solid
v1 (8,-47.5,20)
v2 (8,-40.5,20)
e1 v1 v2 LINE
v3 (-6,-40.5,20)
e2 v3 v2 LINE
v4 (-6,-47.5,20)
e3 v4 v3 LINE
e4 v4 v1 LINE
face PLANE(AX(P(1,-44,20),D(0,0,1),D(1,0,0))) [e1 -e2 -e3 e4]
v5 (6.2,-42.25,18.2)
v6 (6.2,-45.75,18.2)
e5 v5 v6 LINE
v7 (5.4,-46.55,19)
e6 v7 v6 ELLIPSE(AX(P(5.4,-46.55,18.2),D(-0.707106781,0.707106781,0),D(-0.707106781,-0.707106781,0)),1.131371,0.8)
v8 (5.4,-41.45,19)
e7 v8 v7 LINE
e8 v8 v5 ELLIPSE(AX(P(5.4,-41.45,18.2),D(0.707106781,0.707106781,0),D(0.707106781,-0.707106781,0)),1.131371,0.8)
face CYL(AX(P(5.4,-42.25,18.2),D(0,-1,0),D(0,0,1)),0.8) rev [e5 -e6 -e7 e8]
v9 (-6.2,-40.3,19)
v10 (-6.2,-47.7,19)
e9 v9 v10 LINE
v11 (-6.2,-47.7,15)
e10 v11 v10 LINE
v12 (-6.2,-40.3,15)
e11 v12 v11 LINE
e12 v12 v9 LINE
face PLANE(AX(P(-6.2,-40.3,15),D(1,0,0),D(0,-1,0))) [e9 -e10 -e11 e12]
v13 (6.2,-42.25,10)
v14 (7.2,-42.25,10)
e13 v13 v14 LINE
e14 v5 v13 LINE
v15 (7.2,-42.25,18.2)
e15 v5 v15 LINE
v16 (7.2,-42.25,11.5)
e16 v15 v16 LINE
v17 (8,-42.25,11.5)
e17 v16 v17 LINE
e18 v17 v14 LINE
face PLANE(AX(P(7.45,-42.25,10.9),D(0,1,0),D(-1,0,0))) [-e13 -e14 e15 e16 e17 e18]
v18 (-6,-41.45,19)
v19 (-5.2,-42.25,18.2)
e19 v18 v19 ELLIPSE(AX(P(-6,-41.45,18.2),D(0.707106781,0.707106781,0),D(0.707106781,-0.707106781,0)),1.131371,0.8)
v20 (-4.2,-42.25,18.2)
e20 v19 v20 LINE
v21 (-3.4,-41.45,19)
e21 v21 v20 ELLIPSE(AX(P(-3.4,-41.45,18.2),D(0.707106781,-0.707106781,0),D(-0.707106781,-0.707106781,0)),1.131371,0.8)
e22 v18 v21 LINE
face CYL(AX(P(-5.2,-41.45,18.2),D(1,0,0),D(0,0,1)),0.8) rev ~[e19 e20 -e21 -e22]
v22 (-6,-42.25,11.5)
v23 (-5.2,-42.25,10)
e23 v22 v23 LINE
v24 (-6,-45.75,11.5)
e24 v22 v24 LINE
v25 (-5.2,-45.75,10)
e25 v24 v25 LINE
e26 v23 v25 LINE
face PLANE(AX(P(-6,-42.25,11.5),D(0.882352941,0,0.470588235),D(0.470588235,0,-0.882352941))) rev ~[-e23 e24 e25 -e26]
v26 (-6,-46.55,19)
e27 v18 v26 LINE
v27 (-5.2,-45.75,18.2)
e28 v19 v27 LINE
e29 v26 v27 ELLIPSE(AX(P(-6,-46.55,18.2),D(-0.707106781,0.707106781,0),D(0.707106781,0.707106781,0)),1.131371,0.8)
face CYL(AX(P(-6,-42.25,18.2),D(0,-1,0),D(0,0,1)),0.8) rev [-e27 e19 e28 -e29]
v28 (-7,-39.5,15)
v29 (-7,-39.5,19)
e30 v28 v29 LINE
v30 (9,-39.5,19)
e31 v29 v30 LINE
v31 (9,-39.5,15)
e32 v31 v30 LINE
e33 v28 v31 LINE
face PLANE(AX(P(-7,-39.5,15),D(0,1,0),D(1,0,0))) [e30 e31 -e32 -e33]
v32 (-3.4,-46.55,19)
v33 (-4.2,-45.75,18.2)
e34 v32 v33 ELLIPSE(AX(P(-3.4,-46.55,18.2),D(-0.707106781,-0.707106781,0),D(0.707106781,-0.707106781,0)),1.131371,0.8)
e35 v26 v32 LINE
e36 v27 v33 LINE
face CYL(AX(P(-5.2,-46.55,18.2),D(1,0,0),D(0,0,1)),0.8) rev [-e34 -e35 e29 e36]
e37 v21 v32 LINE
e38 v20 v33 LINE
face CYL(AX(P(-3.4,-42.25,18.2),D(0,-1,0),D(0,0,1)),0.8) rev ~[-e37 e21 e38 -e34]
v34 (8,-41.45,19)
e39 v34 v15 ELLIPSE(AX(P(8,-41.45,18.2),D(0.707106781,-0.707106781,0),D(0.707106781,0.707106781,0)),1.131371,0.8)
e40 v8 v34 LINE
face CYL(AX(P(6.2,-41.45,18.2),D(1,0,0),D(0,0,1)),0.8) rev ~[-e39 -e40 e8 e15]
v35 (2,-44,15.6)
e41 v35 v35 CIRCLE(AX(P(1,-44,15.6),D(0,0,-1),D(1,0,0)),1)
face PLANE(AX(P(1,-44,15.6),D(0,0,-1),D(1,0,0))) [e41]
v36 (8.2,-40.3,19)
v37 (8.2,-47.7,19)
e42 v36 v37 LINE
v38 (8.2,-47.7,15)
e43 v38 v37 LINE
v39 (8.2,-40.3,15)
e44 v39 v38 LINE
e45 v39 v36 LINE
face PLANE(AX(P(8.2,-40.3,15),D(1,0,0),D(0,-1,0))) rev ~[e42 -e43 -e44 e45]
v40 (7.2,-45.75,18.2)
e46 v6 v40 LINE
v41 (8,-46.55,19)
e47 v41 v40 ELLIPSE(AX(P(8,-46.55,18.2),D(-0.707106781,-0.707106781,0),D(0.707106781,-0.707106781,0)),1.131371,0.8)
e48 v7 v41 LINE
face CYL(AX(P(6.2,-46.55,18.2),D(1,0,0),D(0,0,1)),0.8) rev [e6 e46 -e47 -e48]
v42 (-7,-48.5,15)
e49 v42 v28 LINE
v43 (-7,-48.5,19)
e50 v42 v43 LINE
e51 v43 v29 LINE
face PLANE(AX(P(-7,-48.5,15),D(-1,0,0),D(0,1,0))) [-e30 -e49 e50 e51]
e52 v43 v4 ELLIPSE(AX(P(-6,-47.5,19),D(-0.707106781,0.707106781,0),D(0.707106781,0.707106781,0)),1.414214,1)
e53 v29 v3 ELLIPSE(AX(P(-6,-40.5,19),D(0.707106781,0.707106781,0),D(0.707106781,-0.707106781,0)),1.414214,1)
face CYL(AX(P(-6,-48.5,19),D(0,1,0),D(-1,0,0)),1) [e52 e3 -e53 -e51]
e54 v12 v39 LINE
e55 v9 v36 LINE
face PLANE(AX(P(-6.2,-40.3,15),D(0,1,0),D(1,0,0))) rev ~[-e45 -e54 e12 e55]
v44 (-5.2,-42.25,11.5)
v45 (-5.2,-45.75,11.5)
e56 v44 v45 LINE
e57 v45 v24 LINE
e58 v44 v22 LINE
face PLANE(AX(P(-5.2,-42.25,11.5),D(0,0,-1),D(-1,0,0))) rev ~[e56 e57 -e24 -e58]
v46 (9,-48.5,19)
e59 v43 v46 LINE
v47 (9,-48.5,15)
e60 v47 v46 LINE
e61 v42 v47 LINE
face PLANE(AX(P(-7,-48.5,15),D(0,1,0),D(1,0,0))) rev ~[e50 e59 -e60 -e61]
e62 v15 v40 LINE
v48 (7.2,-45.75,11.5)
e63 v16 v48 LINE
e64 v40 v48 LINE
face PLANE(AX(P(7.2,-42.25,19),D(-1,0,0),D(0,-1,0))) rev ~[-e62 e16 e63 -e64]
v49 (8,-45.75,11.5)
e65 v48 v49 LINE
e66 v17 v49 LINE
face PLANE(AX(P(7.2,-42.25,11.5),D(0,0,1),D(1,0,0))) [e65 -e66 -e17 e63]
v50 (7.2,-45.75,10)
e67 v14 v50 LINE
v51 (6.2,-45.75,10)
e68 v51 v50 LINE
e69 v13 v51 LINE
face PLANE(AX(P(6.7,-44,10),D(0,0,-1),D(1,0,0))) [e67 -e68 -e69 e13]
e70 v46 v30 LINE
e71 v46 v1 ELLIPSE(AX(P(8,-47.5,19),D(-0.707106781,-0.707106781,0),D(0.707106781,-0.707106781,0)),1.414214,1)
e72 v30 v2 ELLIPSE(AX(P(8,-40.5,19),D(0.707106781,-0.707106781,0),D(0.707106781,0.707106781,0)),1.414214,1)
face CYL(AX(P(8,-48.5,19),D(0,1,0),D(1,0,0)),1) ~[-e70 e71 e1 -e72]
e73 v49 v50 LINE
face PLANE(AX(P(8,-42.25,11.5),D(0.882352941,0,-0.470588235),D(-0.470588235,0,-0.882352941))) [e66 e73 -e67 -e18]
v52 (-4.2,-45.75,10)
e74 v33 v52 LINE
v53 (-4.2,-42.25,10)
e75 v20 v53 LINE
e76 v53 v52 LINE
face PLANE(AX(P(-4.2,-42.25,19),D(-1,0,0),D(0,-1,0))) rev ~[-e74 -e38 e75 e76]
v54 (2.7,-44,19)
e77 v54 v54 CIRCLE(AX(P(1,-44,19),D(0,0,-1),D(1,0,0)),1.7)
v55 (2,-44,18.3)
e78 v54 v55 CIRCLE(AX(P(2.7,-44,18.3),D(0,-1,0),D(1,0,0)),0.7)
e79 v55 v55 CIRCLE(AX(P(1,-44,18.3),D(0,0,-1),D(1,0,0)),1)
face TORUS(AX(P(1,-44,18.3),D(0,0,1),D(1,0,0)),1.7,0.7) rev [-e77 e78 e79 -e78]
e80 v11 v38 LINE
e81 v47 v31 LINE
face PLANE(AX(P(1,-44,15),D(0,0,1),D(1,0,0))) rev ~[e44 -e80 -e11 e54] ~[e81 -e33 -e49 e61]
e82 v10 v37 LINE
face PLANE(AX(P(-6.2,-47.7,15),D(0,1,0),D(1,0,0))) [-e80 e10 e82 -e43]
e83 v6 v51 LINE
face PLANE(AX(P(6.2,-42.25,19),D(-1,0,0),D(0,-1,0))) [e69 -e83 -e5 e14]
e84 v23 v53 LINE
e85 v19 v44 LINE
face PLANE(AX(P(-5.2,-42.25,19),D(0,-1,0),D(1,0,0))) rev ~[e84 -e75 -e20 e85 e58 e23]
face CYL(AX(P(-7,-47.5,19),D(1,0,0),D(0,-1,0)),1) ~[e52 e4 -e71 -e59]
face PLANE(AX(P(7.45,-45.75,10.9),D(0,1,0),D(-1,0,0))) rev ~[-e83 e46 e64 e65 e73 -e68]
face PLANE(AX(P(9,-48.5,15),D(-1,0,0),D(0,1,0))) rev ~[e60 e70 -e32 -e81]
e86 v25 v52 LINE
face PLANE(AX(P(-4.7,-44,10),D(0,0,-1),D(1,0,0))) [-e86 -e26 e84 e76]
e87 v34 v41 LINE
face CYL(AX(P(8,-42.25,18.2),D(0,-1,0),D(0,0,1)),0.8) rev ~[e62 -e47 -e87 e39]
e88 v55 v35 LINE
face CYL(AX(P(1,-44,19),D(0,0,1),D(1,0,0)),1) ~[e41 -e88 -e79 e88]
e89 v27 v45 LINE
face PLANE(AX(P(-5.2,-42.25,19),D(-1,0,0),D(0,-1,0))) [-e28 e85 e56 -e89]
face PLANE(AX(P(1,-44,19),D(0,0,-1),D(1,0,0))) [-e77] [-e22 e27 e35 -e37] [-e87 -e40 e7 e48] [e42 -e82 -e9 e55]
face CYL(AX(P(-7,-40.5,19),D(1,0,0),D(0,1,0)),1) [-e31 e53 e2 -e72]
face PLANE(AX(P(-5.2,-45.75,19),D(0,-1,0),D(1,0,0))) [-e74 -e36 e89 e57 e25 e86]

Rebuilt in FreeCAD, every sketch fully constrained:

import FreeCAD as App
import Part
import Sketcher
from FreeCAD import Vector
Q = App.Units.Quantity


def edges_at(feature, points):
    """Names of the edges that pass closest to the given points."""
    edges = feature.Shape.Edges
    near = lambda p: min(range(len(edges)), key=lambda i: edges[i].distToShape(Part.Vertex(*p))[0])
    return sorted({f"Edge{near(p) + 1}" for p in points})


def add_polygon(sketch, points):
    """Adds a closed chain of lines whose ends are joined by coincident constraints."""
    first, n = sketch.GeometryCount, len(points)
    for a, b in zip(points, points[1:] + points[:1]):
        sketch.addGeometry(Part.LineSegment(App.Vector(*a, 0), App.Vector(*b, 0)), False)
    for i in range(n):
        sketch.addConstraint(Sketcher.Constraint("Coincident", first + i, 2, first + (i + 1) % n, 1))

doc = App.newDocument("Part")
body = doc.addObject("PartDesign::Body", "Body")

sketch1 = body.newObject("Sketcher::SketchObject", "Sketch")
sketch1.AttachmentSupport = (doc.getObject("XY_Plane"), [""])
sketch1.MapMode = "FlatFace"
add_polygon(sketch1, [(-8, 4), (-8, -4), (8, -4), (8, 4)])
sketch1.addConstraint(Sketcher.Constraint("Vertical", 0))
sketch1.addConstraint(Sketcher.Constraint("Horizontal", 1))
sketch1.addConstraint(Sketcher.Constraint("Vertical", 2))
sketch1.addConstraint(Sketcher.Constraint("Horizontal", 3))
sketch1.addConstraint(Sketcher.Constraint("Symmetric", 0, 2, 2, 2, -1, 1))
sketch1.addConstraint(Sketcher.Constraint("DistanceX", 1, 1, 1, 2, Q("16 mm")))
sketch1.addConstraint(Sketcher.Constraint("DistanceY", 0, 2, 0, 1, Q("9 mm")))
pad1 = body.newObject("PartDesign::Pad", "Pad")
pad1.Profile = sketch1
pad1.Length = 5

sketch2 = body.newObject("Sketcher::SketchObject", "Sketch001")
sketch2.AttachmentSupport = (doc.getObject("XY_Plane"), [""])
sketch2.MapMode = "FlatFace"
add_polygon(sketch2, [(-7, -4), (-7, 4), (7, 4), (7, -4)])
sketch2.addConstraint(Sketcher.Constraint("Vertical", 0))
sketch2.addConstraint(Sketcher.Constraint("Horizontal", 1))
sketch2.addConstraint(Sketcher.Constraint("Vertical", 2))
sketch2.addConstraint(Sketcher.Constraint("Horizontal", 3))
sketch2.addConstraint(Sketcher.Constraint("Symmetric", 0, 2, 2, 2, -1, 1))
sketch2.addConstraint(Sketcher.Constraint("DistanceX", 1, 1, 1, 2, Q("14.4 mm")))
sketch2.addConstraint(Sketcher.Constraint("DistanceY", 0, 1, 0, 2, Q("7.4 mm")))
pocket1 = body.newObject("PartDesign::Pocket", "Pocket")
pocket1.Profile = sketch2
pocket1.Length = 4
pocket1.Reversed = True

sketch3 = body.newObject("Sketcher::SketchObject", "Sketch002")
sketch3.AttachmentSupport = (doc.getObject("XY_Plane"), [""])
sketch3.MapMode = "FlatFace"
sketch3.AttachmentOffset = App.Placement(Vector(0, 0, 4), App.Rotation())
add_polygon(sketch3, [(-6.2, -1.8), (-6.2, 1.8), (-5.2, 1.8), (-5.2, -1.8)])
add_polygon(sketch3, [(5.2, -1.8), (5.2, 1.8), (6.2, 1.8), (6.2, -1.8)])
sketch3.addConstraint(Sketcher.Constraint("Vertical", 0))
sketch3.addConstraint(Sketcher.Constraint("Horizontal", 1))
sketch3.addConstraint(Sketcher.Constraint("Vertical", 2))
sketch3.addConstraint(Sketcher.Constraint("Horizontal", 3))
sketch3.addConstraint(Sketcher.Constraint("Vertical", 4))
sketch3.addConstraint(Sketcher.Constraint("Horizontal", 5))
sketch3.addConstraint(Sketcher.Constraint("Vertical", 6))
sketch3.addConstraint(Sketcher.Constraint("Horizontal", 7))
sketch3.addConstraint(Sketcher.Constraint("Symmetric", 2, 2, 4, 2, -1, 1))
sketch3.addConstraint(Sketcher.Constraint("Symmetric", 0, 2, 6, 2, -1, 1))
sketch3.addConstraint(Sketcher.Constraint("Horizontal", 1, 2, 4, 2))
sketch3.addConstraint(Sketcher.Constraint("DistanceX", 1, 1, 1, 2, Q("1 mm")))
sketch3.addConstraint(Sketcher.Constraint("DistanceY", 0, 1, 0, 2, Q("3.5 mm")))
sketch3.addConstraint(Sketcher.Constraint("DistanceX", 0, 2, -1, 1, Q("6.2 mm")))
pad2 = body.newObject("PartDesign::Pad", "Pad001")
pad2.Profile = sketch3
pad2.Length = 9
pad2.Reversed = True

sketch4 = body.newObject("Sketcher::SketchObject", "Sketch003")
sketch4.AttachmentSupport = (doc.getObject("XZ_Plane"), [""])
sketch4.MapMode = "FlatFace"
sketch4.AttachmentOffset = App.Placement(Vector(0, 0, -1.75), App.Rotation())
add_polygon(sketch4, [(6.2, -3.5), (7, -3.5), (6.2, -5)])
add_polygon(sketch4, [(-7, -3.5), (-6.2, -3.5), (-6.2, -5)])
sketch4.addConstraint(Sketcher.Constraint("Horizontal", 0))
sketch4.addConstraint(Sketcher.Constraint("Vertical", 2))
sketch4.addConstraint(Sketcher.Constraint("Horizontal", 3))
sketch4.addConstraint(Sketcher.Constraint("Vertical", 4))
sketch4.addConstraint(Sketcher.Constraint("Symmetric", 2, 2, 3, 2, -2))
sketch4.addConstraint(Sketcher.Constraint("Horizontal", 1, 2, 4, 2))
sketch4.addConstraint(Sketcher.Constraint("Equal", 0, 3))
sketch4.addConstraint(Sketcher.Constraint("DistanceX", 0, 1, 0, 2, Q("0.8 mm")))
sketch4.addConstraint(Sketcher.Constraint("DistanceY", 2, 1, 2, 2, Q("1.5 mm")))
sketch4.addConstraint(Sketcher.Constraint("DistanceX", -1, 1, 0, 2, Q("7 mm")))
sketch4.addConstraint(Sketcher.Constraint("DistanceY", 1, 2, -1, 1, Q("5 mm")))
pad3 = body.newObject("PartDesign::Pad", "Pad002")
pad3.Profile = sketch4
pad3.Length = 3.5

sketch5 = body.newObject("Sketcher::SketchObject", "Sketch004")
sketch5.AttachmentSupport = (doc.getObject("XY_Plane"), [""])
sketch5.MapMode = "FlatFace"
sketch5.AttachmentOffset = App.Placement(Vector(0, 0, 4), App.Rotation())
sketch5.addGeometry(Part.Circle(Vector(0, 0, 0), Vector(0, 0, 1), 1), False)
sketch5.addConstraint(Sketcher.Constraint("Coincident", 0, 3, -1, 1))
sketch5.addConstraint(Sketcher.Constraint("Diameter", 0, Q("2 mm")))
pad4 = body.newObject("PartDesign::Pad", "Pad003")
pad4.Profile = sketch5
pad4.Length = 3.4
pad4.Reversed = True
doc.recompute()

fillet = body.newObject("PartDesign::Fillet", "Fillet")
fillet.Base = (pad4, edges_at(pad4, [
    (0, 4.5, 5),
    (-8, 0, 5),
    (0, -4.5, 5),
    (8, 0, 5),
]))
fillet.Radius = 1
doc.recompute()

fillet2 = body.newObject("PartDesign::Fillet", "Fillet001")
fillet2.Base = (fillet, edges_at(fillet, [(-1, 0, 4)]))
fillet2.Radius = 0.7
doc.recompute()

fillet3 = body.newObject("PartDesign::Fillet", "Fillet002")
fillet3.Base = (fillet2, edges_at(fillet2, [
    (5.2, 0, 4),
    (5.7, 1.75, 4),
    (6.2, 0, 4),
    (5.7, -1.75, 4),
    (-5.7, -1.75, 4),
    (-6.2, 0, 4),
    (-5.2, 0, 4),
    (-5.7, 1.75, 4),
]))
fillet3.Radius = 0.8
body2 = doc.addObject("PartDesign::Body", "Body001")
doc.recompute()

body.Placement = App.Placement(Vector(-33, -44, 15), App.Rotation(Vector(0, 0, 1), 0))
boolean = body2.newObject("PartDesign::Boolean", "Boolean")
boolean.Type = "Fuse"
boolean.addObjects([body])
body3 = doc.addObject("PartDesign::Body", "Body002")
doc.recompute()

body2.Placement = App.Placement(Vector(0, 0, 4), App.Rotation(Vector(0, 0, 1), 0))
boolean2 = body3.newObject("PartDesign::Boolean", "Boolean001")
boolean2.Type = "Fuse"
boolean2.addObjects([body2])
body4 = doc.addObject("PartDesign::Body", "Body003")
doc.recompute()

body3.Placement = App.Placement(Vector(34, 0, -4), App.Rotation(Vector(0, 0, 1), 0))
boolean3 = body4.newObject("PartDesign::Boolean", "Boolean002")
boolean3.Type = "Fuse"
boolean3.addObjects([body3])

doc.recompute()
